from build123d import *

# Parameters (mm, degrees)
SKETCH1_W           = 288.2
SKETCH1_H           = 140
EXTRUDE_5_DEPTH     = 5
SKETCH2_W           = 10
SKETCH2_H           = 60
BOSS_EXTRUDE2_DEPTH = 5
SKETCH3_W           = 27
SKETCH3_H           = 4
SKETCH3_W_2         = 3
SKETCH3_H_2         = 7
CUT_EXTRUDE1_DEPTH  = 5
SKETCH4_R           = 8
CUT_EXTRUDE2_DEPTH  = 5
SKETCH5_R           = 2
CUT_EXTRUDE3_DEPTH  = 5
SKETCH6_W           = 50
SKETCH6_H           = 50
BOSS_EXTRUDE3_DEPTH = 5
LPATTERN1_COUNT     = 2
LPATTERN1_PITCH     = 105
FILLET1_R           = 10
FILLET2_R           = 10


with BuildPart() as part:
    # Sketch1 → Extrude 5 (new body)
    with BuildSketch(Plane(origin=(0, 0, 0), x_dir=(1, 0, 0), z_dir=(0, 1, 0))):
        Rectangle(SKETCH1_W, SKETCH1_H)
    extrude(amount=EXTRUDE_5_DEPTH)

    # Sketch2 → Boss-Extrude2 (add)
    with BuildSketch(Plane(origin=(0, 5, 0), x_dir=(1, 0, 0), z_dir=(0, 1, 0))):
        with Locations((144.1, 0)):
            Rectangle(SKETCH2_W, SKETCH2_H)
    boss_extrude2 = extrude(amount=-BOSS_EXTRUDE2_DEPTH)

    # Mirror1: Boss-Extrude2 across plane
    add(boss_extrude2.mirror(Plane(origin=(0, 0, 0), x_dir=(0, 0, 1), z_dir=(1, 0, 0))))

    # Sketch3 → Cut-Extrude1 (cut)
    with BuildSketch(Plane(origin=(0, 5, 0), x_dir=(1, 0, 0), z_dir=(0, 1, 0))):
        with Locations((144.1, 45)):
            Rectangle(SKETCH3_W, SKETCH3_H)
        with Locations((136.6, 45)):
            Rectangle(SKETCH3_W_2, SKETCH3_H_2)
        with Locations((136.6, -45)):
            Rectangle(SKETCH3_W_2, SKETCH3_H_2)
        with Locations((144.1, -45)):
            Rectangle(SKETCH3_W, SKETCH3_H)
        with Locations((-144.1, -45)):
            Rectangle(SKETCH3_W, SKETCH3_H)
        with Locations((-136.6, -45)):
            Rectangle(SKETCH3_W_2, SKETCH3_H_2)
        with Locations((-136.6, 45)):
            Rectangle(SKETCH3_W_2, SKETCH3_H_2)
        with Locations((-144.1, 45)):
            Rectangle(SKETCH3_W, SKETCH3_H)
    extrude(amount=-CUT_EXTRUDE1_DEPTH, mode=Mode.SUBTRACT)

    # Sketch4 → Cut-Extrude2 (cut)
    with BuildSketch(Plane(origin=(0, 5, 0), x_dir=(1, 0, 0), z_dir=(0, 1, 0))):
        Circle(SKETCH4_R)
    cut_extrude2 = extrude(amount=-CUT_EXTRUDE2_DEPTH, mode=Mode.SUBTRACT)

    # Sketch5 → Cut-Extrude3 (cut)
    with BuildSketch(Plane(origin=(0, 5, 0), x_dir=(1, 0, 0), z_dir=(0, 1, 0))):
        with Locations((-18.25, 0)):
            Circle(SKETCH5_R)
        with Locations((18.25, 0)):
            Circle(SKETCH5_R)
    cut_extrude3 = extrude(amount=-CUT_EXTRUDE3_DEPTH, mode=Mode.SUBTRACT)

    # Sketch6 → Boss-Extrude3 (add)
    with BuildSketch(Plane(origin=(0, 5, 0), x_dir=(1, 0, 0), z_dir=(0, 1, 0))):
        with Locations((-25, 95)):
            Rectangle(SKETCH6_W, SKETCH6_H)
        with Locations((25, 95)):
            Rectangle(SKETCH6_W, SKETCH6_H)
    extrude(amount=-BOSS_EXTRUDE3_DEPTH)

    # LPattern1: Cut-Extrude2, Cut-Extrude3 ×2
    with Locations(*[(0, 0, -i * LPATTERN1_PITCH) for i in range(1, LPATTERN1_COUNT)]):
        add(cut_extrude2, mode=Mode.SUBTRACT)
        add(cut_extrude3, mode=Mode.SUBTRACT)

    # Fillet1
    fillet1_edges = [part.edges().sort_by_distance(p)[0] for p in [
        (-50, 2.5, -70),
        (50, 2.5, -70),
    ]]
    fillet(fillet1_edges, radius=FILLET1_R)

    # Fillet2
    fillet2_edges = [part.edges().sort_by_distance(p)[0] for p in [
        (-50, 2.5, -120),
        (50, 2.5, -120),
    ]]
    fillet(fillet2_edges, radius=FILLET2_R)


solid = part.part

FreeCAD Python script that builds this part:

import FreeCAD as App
import Part
import Sketcher


def edges_at(feature, points):
    """Names of the edges that pass closest to the given points."""
    edges = feature.Shape.Edges
    near = lambda p: min(range(len(edges)), key=lambda i: edges[i].distToShape(Part.Vertex(*p))[0])
    return sorted({f"Edge{near(p) + 1}" for p in points})


def add_polygon(sketch, points):
    """Adds a closed chain of lines whose ends are joined by coincident constraints."""
    first, n = sketch.GeometryCount, len(points)
    for a, b in zip(points, points[1:] + points[:1]):
        sketch.addGeometry(Part.LineSegment(App.Vector(*a, 0), App.Vector(*b, 0)), False)
    for i in range(n):
        sketch.addConstraint(Sketcher.Constraint("Coincident", first + i, 2, first + (i + 1) % n, 1))

doc = App.newDocument("Part")
body = doc.addObject("PartDesign::Body", "Body")

# Sketch on XZ plane
sketch1 = body.newObject("Sketcher::SketchObject", "Sketch")
sketch1.AttachmentSupport = (doc.getObject("XZ_Plane"), [""])
sketch1.MapMode = "FlatFace"
add_polygon(sketch1, [(-144, -70), (-144, 70), (144, 70), (144, -70)])  # lines 0-3
sketch1.addConstraint([
    Sketcher.Constraint("Vertical", 0),
    Sketcher.Constraint("Horizontal", 1),
    Sketcher.Constraint("Vertical", 2),
    Sketcher.Constraint("Horizontal", 3),
    Sketcher.Constraint("Symmetric", 0, 2, 2, 2, -1, 1),
    Sketcher.Constraint("DistanceY", 0, 1, 0, 2, 140.0),
    Sketcher.Constraint("DistanceX", 1, 1, 1, 2, 288.2),
])
pad1 = body.newObject("PartDesign::Pad", "Pad")
pad1.Profile = sketch1
pad1.Length = 5
pad1.Reversed = True

# Sketch on XZ plane
sketch2 = body.newObject("Sketcher::SketchObject", "Sketch001")
sketch2.AttachmentSupport = (doc.getObject("XZ_Plane"), [""])
sketch2.MapMode = "FlatFace"
sketch2.AttachmentOffset = App.Placement(App.Vector(0, 0, -5), App.Rotation())
add_polygon(sketch2, [(139, -30), (139, 30), (149, 30), (149, -30)])  # lines 0-3
sketch2.addConstraint([
    Sketcher.Constraint("Vertical", 0),
    Sketcher.Constraint("Horizontal", 1),
    Sketcher.Constraint("Vertical", 2),
    Sketcher.Constraint("Horizontal", 3),
    Sketcher.Constraint("DistanceX", 1, 1, 1, 2, 10.0),
    Sketcher.Constraint("DistanceY", 0, 1, 0, 2, 60.0),
    Sketcher.Constraint("DistanceY", -1, 1, 0, 2, 30.0),
    Sketcher.Constraint("DistanceX", -1, 1, 0, 2, 139.1),
])
pad2 = body.newObject("PartDesign::Pad", "Pad001")
pad2.Profile = sketch2
pad2.Length = 5
doc.recompute()

mirrored = body.newObject("PartDesign::Mirrored", "Mirrored")
mirrored.Originals = [pad2]
mirrored.MirrorPlane = (doc.getObject("YZ_Plane"), [""])
body.Tip = mirrored

# Sketch on XZ plane
sketch3 = body.newObject("Sketcher::SketchObject", "Sketch002")
sketch3.AttachmentSupport = (doc.getObject("XZ_Plane"), [""])
sketch3.MapMode = "FlatFace"
sketch3.AttachmentOffset = App.Placement(App.Vector(0, 0, -5), App.Rotation())
add_polygon(sketch3, [(130.6, -47), (130.6, -43), (135.1, -43), (135.1, -41.5), (138.1, -41.5), (138.1, -43), (157.6, -43), (157.6, -47), (138.1, -47), (138.1, -48.5), (135.1, -48.5), (135.1, -47)])  # lines 0-11
add_polygon(sketch3, [(135.1, 47), (135.1, 48.5), (138.1, 48.5), (138.1, 47), (157.6, 47), (157.6, 43), (138.1, 43), (138.1, 41.5), (135.1, 41.5), (135.1, 43), (130.6, 43), (130.6, 47)])  # lines 12-23
add_polygon(sketch3, [(-157.6, 43), (-157.6, 47), (-138.1, 47), (-138.1, 48.5), (-135.1, 48.5), (-135.1, 47), (-130.6, 47), (-130.6, 43), (-135.1, 43), (-135.1, 41.5), (-138.1, 41.5), (-138.1, 43)])  # lines 24-35
add_polygon(sketch3, [(-138.1, -43), (-138.1, -41.5), (-135.1, -41.5), (-135.1, -43), (-130.6, -43), (-130.6, -47), (-135.1, -47), (-135.1, -48.5), (-138.1, -48.5), (-138.1, -47), (-157.6, -47), (-157.6, -43)])  # lines 36-47
sketch3.addConstraint([
    Sketcher.Constraint("Vertical", 0),
    Sketcher.Constraint("Horizontal", 1),
    Sketcher.Constraint("Vertical", 2),
    Sketcher.Constraint("Horizontal", 3),
    Sketcher.Constraint("Vertical", 4),
    Sketcher.Constraint("Horizontal", 5),
    Sketcher.Constraint("Vertical", 6),
    Sketcher.Constraint("Horizontal", 7),
    Sketcher.Constraint("Vertical", 8),
    Sketcher.Constraint("Horizontal", 9),
    Sketcher.Constraint("Vertical", 10),
    Sketcher.Constraint("Horizontal", 11),
    Sketcher.Constraint("Vertical", 12),
    Sketcher.Constraint("Horizontal", 13),
    Sketcher.Constraint("Vertical", 14),
    Sketcher.Constraint("Horizontal", 15),
    Sketcher.Constraint("Vertical", 16),
    Sketcher.Constraint("Horizontal", 17),
    Sketcher.Constraint("Vertical", 18),
    Sketcher.Constraint("Horizontal", 19),
    Sketcher.Constraint("Vertical", 20),
    Sketcher.Constraint("Horizontal", 21),
    Sketcher.Constraint("Vertical", 22),
    Sketcher.Constraint("Horizontal", 23),
    Sketcher.Constraint("Vertical", 24),
    Sketcher.Constraint("Horizontal", 25),
    Sketcher.Constraint("Vertical", 26),
    Sketcher.Constraint("Horizontal", 27),
    Sketcher.Constraint("Vertical", 28),
    Sketcher.Constraint("Horizontal", 29),
    Sketcher.Constraint("Vertical", 30),
    Sketcher.Constraint("Horizontal", 31),
    Sketcher.Constraint("Vertical", 32),
    Sketcher.Constraint("Horizontal", 33),
    Sketcher.Constraint("Vertical", 34),
    Sketcher.Constraint("Horizontal", 35),
    Sketcher.Constraint("Vertical", 36),
    Sketcher.Constraint("Horizontal", 37),
    Sketcher.Constraint("Vertical", 38),
    Sketcher.Constraint("Horizontal", 39),
    Sketcher.Constraint("Vertical", 40),
    Sketcher.Constraint("Horizontal", 41),
    Sketcher.Constraint("Vertical", 42),
    Sketcher.Constraint("Horizontal", 43),
    Sketcher.Constraint("Vertical", 44),
    Sketcher.Constraint("Horizontal", 45),
    Sketcher.Constraint("Vertical", 46),
    Sketcher.Constraint("Horizontal", 47),
    Sketcher.Constraint("Symmetric", 6, 2, 24, 2, -1, 1),
    Sketcher.Constraint("Symmetric", 8, 2, 26, 2, -1, 1),
    Sketcher.Constraint("Symmetric", 10, 2, 28, 2, -1, 1),
    Sketcher.Constraint("Symmetric", 0, 2, 30, 2, -1, 1),
    Sketcher.Constraint("Symmetric", 2, 2, 32, 2, -1, 1),
    Sketcher.Constraint("Symmetric", 4, 2, 34, 2, -1, 1),
    Sketcher.Constraint("Symmetric", 18, 2, 36, 2, -1, 1),
    Sketcher.Constraint("Symmetric", 20, 2, 38, 2, -1, 1),
    Sketcher.Constraint("Symmetric", 22, 2, 40, 2, -1, 1),
    Sketcher.Constraint("Symmetric", 12, 2, 42, 2, -1, 1),
    Sketcher.Constraint("Symmetric", 14, 2, 44, 2, -1, 1),
    Sketcher.Constraint("Symmetric", 16, 2, 46, 2, -1, 1),
    Sketcher.Constraint("Symmetric", 15, 2, 24, 2, -2),
    Sketcher.Constraint("Symmetric", 13, 2, 26, 2, -2),
    Sketcher.Constraint("Symmetric", 23, 2, 28, 2, -2),
    Sketcher.Constraint("Symmetric", 21, 2, 30, 2, -2),
    Sketcher.Constraint("Symmetric", 19, 2, 32, 2, -2),
    Sketcher.Constraint("Symmetric", 17, 2, 34, 2, -2),
    Sketcher.Constraint("Horizontal", 1, 2, 4, 2),
    Sketcher.Constraint("Horizontal", 7, 2, 10, 2),
    Sketcher.Constraint("Vertical", 4, 2, 7, 2),
    Sketcher.Constraint("Vertical", 2, 2, 9, 2),
    Sketcher.Constraint("Equal", 4, 8),
    Sketcher.Constraint("DistanceX", 3, 1, 3, 2, 3.0),
    Sketcher.Constraint("DistanceY", 0, 1, 0, 2, 4.0),
    Sketcher.Constraint("DistanceX", 1, 1, 1, 2, 4.5),
    Sketcher.Constraint("DistanceX", 5, 1, 5, 2, 19.5),
    Sketcher.Constraint("DistanceY", 2, 1, 2, 2, 1.5),
    Sketcher.Constraint("DistanceY", 0, 2, -1, 1, 43.0),
    Sketcher.Constraint("DistanceX", -1, 1, 0, 2, 130.6),
])
pocket1 = body.newObject("PartDesign::Pocket", "Pocket")
pocket1.Profile = sketch3
pocket1.Length = 5
pocket1.Reversed = True

# Sketch on XZ plane
sketch4 = body.newObject("Sketcher::SketchObject", "Sketch003")
sketch4.AttachmentSupport = (doc.getObject("XZ_Plane"), [""])
sketch4.MapMode = "FlatFace"
sketch4.AttachmentOffset = App.Placement(App.Vector(0, 0, -5), App.Rotation())
sketch4.addGeometry(Part.Circle(App.Vector(0, 0, 0), App.Vector(0, 0, 1), 8), False)
sketch4.addConstraint([
    Sketcher.Constraint("Coincident", 0, 3, -1, 1),
    Sketcher.Constraint("Diameter", 0, 16.0),
])
pocket2 = body.newObject("PartDesign::Pocket", "Pocket001")
pocket2.Profile = sketch4
pocket2.Length = 5
pocket2.Reversed = True

# Sketch on XZ plane
sketch5 = body.newObject("Sketcher::SketchObject", "Sketch004")
sketch5.AttachmentSupport = (doc.getObject("XZ_Plane"), [""])
sketch5.MapMode = "FlatFace"
sketch5.AttachmentOffset = App.Placement(App.Vector(0, 0, -5), App.Rotation())
sketch5.addGeometry([
    Part.Circle(App.Vector(-18.2, 0, 0), App.Vector(0, 0, 1), 2),
    Part.Circle(App.Vector(18.2, 0, 0), App.Vector(0, 0, 1), 2),
], False)
sketch5.addConstraint([
    Sketcher.Constraint("Equal", 0, 1),
    Sketcher.Constraint("Symmetric", 0, 3, 1, 3, -1, 1),
    Sketcher.Constraint("PointOnObject", 0, 3, -1),
    Sketcher.Constraint("Diameter", 0, 4.0),
    Sketcher.Constraint("DistanceX", 0, 3, 1, 3, 36.5),
])
pocket3 = body.newObject("PartDesign::Pocket", "Pocket002")
pocket3.Profile = sketch5
pocket3.Length = 5
pocket3.Reversed = True

# Sketch on XZ plane
sketch6 = body.newObject("Sketcher::SketchObject", "Sketch005")
sketch6.AttachmentSupport = (doc.getObject("XZ_Plane"), [""])
sketch6.MapMode = "FlatFace"
sketch6.AttachmentOffset = App.Placement(App.Vector(0, 0, -5), App.Rotation())
add_polygon(sketch6, [(-50, -120), (-50, -70), (50, -70), (50, -120)])  # lines 0-3
sketch6.addConstraint([
    Sketcher.Constraint("Vertical", 0),
    Sketcher.Constraint("Horizontal", 1),
    Sketcher.Constraint("Vertical", 2),
    Sketcher.Constraint("Horizontal", 3),
    Sketcher.Constraint("DistanceX", 1, 1, 1, 2, 100.0),
    Sketcher.Constraint("DistanceY", 0, 1, 0, 2, 50.0),
    Sketcher.Constraint("DistanceX", 0, 2, -1, 1, 50.0),
    Sketcher.Constraint("DistanceY", 0, 2, -1, 1, 70.0),
])
pad3 = body.newObject("PartDesign::Pad", "Pad002")
pad3.Profile = sketch6
pad3.Length = 5
doc.recompute()

linearpattern = body.newObject("PartDesign::LinearPattern", "LinearPattern")
linearpattern.Originals = [pocket2, pocket3]
linearpattern.Direction = (doc.getObject("Z_Axis"), [""])
linearpattern.Mode = "offset"
linearpattern.Offset = 105
linearpattern.Occurrences = 2
linearpattern.Reversed = True
body.Tip = linearpattern
doc.recompute()

fillet = body.newObject("PartDesign::Fillet", "Fillet")
fillet.Base = (linearpattern, edges_at(linearpattern, [(-50, 2.5, -70), (50, 2.5, -70)]))
fillet.Radius = 10
doc.recompute()

fillet2 = body.newObject("PartDesign::Fillet", "Fillet001")
fillet2.Base = (fillet, edges_at(fillet, [(-50, 2.5, -120), (50, 2.5, -120)]))
fillet2.Radius = 10

doc.recompute()
